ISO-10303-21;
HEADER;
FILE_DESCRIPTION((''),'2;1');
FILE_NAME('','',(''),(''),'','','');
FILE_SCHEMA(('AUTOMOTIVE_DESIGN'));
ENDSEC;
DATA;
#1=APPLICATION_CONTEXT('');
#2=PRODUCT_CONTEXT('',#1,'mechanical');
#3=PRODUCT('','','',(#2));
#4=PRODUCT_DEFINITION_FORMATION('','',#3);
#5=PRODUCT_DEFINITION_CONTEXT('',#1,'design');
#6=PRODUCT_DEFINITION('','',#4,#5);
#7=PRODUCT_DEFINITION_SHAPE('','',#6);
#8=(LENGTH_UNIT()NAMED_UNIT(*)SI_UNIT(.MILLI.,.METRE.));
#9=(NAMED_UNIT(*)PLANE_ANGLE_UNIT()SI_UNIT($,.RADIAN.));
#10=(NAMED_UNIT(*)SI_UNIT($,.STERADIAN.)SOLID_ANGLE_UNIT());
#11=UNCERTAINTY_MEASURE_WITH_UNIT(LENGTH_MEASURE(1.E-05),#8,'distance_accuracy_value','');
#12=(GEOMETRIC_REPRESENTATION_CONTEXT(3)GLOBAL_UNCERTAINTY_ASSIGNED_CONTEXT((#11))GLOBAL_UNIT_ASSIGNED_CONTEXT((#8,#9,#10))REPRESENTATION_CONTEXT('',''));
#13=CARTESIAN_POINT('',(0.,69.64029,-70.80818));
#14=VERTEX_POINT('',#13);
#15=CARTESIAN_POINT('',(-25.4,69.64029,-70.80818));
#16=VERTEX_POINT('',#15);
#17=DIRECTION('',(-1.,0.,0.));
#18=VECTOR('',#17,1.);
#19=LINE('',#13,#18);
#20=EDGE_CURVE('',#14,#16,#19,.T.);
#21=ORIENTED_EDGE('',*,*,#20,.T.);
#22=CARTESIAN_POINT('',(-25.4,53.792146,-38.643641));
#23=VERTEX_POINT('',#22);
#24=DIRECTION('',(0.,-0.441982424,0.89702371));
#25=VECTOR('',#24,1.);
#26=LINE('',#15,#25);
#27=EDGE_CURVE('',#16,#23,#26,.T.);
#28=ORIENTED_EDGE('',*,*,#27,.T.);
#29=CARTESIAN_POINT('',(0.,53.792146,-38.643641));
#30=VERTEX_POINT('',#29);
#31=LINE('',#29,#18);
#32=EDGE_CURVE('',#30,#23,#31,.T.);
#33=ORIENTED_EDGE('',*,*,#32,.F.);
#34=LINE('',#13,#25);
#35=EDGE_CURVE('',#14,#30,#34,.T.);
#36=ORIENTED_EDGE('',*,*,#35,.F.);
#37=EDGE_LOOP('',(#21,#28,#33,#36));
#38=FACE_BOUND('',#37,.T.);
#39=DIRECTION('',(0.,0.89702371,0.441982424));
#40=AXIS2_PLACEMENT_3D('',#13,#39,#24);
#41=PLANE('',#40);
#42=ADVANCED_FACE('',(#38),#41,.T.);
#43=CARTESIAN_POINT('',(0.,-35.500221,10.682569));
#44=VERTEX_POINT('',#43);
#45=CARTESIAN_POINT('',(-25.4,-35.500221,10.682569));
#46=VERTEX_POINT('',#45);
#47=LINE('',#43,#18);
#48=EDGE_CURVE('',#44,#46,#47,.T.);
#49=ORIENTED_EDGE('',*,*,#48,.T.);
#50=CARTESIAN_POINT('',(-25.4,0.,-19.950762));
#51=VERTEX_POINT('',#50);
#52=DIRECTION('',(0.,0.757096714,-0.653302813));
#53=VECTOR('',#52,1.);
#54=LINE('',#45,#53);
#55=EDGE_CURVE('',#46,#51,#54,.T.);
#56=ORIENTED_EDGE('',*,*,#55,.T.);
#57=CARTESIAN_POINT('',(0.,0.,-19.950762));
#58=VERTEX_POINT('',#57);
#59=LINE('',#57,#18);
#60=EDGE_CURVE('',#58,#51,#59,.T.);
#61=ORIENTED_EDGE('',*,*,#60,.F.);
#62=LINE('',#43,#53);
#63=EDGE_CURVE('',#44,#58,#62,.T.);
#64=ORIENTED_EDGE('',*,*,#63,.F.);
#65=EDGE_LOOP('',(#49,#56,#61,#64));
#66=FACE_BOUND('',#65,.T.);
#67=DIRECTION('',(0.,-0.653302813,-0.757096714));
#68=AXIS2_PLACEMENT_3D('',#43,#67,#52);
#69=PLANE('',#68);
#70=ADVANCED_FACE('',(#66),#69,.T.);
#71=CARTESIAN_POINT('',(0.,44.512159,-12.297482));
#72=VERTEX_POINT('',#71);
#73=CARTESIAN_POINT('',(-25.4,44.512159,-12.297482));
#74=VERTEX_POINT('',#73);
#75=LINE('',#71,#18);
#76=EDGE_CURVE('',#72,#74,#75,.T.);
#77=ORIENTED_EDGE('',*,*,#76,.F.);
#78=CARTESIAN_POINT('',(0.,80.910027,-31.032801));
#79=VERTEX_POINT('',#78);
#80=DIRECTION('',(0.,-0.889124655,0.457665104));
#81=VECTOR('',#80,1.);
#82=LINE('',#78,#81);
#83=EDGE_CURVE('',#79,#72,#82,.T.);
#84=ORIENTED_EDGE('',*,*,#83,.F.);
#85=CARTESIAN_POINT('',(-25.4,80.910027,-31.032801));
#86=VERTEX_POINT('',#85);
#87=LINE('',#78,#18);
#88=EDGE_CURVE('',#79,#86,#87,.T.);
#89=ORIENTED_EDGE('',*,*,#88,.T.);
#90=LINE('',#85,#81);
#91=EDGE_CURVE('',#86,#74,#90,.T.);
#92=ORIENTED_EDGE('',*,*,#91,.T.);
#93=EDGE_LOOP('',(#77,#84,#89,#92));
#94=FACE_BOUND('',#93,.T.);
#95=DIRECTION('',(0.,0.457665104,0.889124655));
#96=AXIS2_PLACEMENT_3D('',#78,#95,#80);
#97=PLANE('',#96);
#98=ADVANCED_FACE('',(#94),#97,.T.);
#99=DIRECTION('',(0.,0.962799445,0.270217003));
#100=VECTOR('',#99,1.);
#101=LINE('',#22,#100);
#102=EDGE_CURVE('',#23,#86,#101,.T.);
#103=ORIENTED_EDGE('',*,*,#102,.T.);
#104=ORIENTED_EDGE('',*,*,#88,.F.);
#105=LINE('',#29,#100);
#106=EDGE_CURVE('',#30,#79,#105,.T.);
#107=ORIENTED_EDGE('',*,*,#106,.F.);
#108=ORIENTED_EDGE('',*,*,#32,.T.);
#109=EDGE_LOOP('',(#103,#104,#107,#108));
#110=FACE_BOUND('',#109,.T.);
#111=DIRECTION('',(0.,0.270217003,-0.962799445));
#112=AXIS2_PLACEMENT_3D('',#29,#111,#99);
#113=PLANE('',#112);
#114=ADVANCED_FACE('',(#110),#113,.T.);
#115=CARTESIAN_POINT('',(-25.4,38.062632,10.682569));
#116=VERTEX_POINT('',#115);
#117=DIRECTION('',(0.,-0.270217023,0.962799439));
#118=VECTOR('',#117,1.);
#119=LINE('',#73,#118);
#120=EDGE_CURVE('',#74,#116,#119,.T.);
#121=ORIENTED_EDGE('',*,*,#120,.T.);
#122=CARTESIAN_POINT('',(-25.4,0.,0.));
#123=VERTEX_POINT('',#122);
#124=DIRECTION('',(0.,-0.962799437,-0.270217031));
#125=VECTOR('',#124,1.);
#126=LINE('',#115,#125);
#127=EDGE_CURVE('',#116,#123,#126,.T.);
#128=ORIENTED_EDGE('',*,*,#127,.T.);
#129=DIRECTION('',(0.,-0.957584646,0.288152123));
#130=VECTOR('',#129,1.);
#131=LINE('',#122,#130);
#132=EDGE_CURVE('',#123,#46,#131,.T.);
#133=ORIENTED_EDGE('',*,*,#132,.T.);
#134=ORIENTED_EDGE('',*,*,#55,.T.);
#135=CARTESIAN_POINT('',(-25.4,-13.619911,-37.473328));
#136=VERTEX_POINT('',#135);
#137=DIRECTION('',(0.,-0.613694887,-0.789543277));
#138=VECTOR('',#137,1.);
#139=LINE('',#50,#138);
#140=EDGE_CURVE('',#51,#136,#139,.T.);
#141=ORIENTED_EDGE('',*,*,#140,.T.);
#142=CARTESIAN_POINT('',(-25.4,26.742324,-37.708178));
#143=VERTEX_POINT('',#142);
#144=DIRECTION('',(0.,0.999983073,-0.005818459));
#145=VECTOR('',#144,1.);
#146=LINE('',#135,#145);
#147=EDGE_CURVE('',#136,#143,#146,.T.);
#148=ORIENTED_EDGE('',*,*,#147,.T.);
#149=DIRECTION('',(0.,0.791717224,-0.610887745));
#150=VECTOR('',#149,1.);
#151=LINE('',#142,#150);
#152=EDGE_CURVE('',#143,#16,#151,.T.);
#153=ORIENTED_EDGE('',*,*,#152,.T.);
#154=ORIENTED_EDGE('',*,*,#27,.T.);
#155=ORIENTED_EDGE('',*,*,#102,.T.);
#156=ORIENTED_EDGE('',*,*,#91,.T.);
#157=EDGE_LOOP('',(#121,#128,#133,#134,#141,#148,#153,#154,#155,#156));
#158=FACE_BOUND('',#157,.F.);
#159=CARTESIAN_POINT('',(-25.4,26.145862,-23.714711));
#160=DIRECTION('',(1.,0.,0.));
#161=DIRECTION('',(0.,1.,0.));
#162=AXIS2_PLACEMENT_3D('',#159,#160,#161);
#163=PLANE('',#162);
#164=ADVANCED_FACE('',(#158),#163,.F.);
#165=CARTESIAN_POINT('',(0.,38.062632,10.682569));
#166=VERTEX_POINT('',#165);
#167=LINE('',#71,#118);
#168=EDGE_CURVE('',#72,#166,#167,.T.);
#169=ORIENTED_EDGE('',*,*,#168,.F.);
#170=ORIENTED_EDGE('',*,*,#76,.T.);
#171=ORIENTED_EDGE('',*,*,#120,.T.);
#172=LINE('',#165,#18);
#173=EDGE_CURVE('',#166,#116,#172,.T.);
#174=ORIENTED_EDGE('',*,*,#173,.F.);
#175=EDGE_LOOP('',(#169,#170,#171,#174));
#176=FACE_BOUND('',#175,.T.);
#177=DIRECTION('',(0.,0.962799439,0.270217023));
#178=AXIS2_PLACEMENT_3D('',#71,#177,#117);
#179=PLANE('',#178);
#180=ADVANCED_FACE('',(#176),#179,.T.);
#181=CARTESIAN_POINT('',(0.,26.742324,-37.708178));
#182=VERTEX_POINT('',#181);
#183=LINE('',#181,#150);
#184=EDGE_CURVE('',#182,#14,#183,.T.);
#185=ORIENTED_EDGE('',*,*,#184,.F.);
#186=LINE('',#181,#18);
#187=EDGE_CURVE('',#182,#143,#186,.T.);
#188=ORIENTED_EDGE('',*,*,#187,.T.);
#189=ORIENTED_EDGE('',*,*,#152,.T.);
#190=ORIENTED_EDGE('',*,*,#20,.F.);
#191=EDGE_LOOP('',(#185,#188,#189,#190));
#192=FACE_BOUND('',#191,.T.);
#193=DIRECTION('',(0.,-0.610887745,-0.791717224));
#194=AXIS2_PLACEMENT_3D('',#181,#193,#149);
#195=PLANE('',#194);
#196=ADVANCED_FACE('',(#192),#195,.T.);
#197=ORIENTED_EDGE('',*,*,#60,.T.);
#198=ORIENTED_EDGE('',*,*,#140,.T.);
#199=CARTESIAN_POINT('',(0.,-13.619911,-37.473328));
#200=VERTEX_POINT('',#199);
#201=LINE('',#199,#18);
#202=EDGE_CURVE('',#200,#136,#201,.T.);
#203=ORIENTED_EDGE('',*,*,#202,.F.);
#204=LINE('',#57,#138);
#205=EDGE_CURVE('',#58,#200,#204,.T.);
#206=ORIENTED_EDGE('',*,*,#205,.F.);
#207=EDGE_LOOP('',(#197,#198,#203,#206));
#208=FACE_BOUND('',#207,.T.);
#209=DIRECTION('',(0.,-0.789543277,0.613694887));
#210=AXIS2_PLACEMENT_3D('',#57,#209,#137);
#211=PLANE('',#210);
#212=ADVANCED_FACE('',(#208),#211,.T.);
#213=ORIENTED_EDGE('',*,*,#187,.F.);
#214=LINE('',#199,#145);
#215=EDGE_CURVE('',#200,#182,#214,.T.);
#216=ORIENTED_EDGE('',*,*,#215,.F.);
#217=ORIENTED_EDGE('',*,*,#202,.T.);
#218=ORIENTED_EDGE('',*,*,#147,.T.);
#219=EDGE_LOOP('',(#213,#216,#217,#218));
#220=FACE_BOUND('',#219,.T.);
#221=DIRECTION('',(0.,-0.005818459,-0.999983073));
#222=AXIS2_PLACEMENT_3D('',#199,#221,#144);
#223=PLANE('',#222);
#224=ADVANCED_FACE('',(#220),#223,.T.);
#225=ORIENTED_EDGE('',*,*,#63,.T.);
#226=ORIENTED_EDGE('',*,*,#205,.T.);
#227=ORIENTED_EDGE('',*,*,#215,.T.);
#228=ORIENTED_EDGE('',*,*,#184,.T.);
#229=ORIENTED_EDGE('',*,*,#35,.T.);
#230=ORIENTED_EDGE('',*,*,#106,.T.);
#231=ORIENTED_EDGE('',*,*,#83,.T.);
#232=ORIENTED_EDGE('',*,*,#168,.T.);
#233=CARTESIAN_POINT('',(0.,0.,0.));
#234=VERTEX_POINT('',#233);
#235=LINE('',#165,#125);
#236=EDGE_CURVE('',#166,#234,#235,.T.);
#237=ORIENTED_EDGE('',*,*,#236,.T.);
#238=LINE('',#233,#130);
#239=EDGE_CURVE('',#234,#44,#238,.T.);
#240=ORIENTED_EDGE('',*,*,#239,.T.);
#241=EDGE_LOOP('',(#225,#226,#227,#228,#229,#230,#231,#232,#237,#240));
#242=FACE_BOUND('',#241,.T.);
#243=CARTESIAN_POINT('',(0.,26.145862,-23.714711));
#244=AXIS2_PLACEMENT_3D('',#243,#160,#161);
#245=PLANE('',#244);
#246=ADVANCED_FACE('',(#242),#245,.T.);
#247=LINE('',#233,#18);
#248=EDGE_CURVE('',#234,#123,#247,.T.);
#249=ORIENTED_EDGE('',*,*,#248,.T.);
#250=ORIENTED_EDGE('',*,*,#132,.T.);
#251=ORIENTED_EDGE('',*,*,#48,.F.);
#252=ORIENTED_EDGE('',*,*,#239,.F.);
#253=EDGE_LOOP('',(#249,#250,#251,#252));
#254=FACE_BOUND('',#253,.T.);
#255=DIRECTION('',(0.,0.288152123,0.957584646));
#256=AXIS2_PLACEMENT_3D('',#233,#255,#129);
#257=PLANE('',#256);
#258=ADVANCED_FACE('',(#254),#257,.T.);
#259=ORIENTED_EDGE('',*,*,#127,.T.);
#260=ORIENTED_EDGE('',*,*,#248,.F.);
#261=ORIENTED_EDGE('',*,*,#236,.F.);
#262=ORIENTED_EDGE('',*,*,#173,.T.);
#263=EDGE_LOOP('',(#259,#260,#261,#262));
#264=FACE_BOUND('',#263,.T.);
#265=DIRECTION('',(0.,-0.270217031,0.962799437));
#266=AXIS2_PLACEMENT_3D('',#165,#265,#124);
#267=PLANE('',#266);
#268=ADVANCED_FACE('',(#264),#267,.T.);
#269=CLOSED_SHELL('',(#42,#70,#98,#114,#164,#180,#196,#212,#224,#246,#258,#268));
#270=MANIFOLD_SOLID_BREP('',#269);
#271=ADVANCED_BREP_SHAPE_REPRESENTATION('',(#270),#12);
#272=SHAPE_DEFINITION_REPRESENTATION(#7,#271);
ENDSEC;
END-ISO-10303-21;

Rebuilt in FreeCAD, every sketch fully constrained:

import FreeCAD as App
import Part
import Sketcher

V = App.Vector
Q = App.Units.Quantity

doc = App.newDocument("Part")
params = doc.addObject("Spreadsheet::Sheet", "Params")
for row, (alias, value) in enumerate([
    ("pad1_length", "1 in"),
], start=1):
    params.set(f"A{row}", alias)
    params.set(f"B{row}", "=" + value)
    params.setAlias(f"B{row}", alias)

body = doc.addObject("PartDesign::Body", "Body")

# Sketch on YZ plane
sketch1 = body.newObject("Sketcher::SketchObject", "Sketch")
sketch1.AttachmentSupport = (doc.getObject("YZ_Plane"), [""])
sketch1.MapMode = "FlatFace"
sketch1.addGeometry(Part.LineSegment(V(0, -20, 0), V(-14, -37, 0)), False)
sketch1.addGeometry(Part.LineSegment(V(-14, -37, 0), V(27, -38, 0)), False)
sketch1.addGeometry(Part.LineSegment(V(27, -38, 0), V(70, -71, 0)), False)
sketch1.addGeometry(Part.LineSegment(V(70, -71, 0), V(54, -39, 0)), False)
sketch1.addGeometry(Part.LineSegment(V(54, -39, 0), V(81, -31, 0)), False)
sketch1.addGeometry(Part.LineSegment(V(81, -31, 0), V(45, -12, 0)), False)
sketch1.addGeometry(Part.LineSegment(V(45, -12, 0), V(38, 11, 0)), False)
sketch1.addGeometry(Part.LineSegment(V(38, 11, 0), V(0, 0, 0)), False)
sketch1.addGeometry(Part.LineSegment(V(0, 0, 0), V(-36, 11, 0)), False)
sketch1.addGeometry(Part.LineSegment(V(-36, 11, 0), V(0, -20, 0)), False)
sketch1.addConstraint(Sketcher.Constraint("Coincident", 0, 2, 1, 1))
sketch1.addConstraint(Sketcher.Constraint("Coincident", 1, 2, 2, 1))
sketch1.addConstraint(Sketcher.Constraint("Coincident", 2, 2, 3, 1))
sketch1.addConstraint(Sketcher.Constraint("Coincident", 3, 2, 4, 1))
sketch1.addConstraint(Sketcher.Constraint("Coincident", 4, 2, 5, 1))
sketch1.addConstraint(Sketcher.Constraint("Coincident", 5, 2, 6, 1))
sketch1.addConstraint(Sketcher.Constraint("Coincident", 6, 2, 7, 1))
sketch1.addConstraint(Sketcher.Constraint("Coincident", 7, 2, 8, 1))
sketch1.addConstraint(Sketcher.Constraint("Coincident", 8, 2, 9, 1))
sketch1.addConstraint(Sketcher.Constraint("Coincident", 9, 2, 0, 1))
sketch1.addConstraint(Sketcher.Constraint("Coincident", 7, 2, -1, 1))
sketch1.addConstraint(Sketcher.Constraint("PointOnObject", 9, 2, -2))
sketch1.addConstraint(Sketcher.Constraint("Perpendicular", 4, 6))
sketch1.addConstraint(Sketcher.Constraint("Perpendicular", 6, 7))
sketch1.addConstraint(Sketcher.Constraint("Horizontal", 6, 2, 8, 2))
sketch1.addConstraint(Sketcher.Constraint("DistanceX", 1, 2, 5, 2, Q("0.6995998 in")))
sketch1.addConstraint(Sketcher.Constraint("DistanceY", 4, 2, -1, 1, 31.032801))
sketch1.addConstraint(Sketcher.Constraint("DistanceY", 2, 2, 1, 2, 33.100002))
sketch1.addConstraint(Sketcher.Constraint("DistanceX", 0, 2, 2, 2, 83.260201))
sketch1.addConstraint(Sketcher.Constraint("Distance", 1, 40.362918))
sketch1.addConstraint(Sketcher.Constraint("Distance", 4, 28.165659))
sketch1.addConstraint(Sketcher.Constraint("Distance", 8, 37.072671))
sketch1.addConstraint(Sketcher.Constraint("Distance", 9, 46.889942))
sketch1.addConstraint(Sketcher.Constraint("DistanceX", 0, 2, -1, 1, 13.619911))
sketch1.addConstraint(Sketcher.Constraint("DistanceY", 0, 2, -1, 1, 37.473328))
sketch1.addConstraint(Sketcher.Constraint("DistanceY", 2, 2, -1, 1, 70.80818))
sketch1.addConstraint(Sketcher.Constraint("DistanceY", 3, 2, -1, 1, 38.643641))
sketch1.addConstraint(Sketcher.Constraint("DistanceY", -1, 1, 6, 2, 10.682569))
sketch1.addConstraint(Sketcher.Constraint("DistanceX", 0, 2, 4, 2, 94.529938))
pad1 = body.newObject("PartDesign::Pad", "Pad")
pad1.Profile = sketch1
pad1.setExpression("Length", "Params.pad1_length")
pad1.Reversed = True

doc.recompute()
